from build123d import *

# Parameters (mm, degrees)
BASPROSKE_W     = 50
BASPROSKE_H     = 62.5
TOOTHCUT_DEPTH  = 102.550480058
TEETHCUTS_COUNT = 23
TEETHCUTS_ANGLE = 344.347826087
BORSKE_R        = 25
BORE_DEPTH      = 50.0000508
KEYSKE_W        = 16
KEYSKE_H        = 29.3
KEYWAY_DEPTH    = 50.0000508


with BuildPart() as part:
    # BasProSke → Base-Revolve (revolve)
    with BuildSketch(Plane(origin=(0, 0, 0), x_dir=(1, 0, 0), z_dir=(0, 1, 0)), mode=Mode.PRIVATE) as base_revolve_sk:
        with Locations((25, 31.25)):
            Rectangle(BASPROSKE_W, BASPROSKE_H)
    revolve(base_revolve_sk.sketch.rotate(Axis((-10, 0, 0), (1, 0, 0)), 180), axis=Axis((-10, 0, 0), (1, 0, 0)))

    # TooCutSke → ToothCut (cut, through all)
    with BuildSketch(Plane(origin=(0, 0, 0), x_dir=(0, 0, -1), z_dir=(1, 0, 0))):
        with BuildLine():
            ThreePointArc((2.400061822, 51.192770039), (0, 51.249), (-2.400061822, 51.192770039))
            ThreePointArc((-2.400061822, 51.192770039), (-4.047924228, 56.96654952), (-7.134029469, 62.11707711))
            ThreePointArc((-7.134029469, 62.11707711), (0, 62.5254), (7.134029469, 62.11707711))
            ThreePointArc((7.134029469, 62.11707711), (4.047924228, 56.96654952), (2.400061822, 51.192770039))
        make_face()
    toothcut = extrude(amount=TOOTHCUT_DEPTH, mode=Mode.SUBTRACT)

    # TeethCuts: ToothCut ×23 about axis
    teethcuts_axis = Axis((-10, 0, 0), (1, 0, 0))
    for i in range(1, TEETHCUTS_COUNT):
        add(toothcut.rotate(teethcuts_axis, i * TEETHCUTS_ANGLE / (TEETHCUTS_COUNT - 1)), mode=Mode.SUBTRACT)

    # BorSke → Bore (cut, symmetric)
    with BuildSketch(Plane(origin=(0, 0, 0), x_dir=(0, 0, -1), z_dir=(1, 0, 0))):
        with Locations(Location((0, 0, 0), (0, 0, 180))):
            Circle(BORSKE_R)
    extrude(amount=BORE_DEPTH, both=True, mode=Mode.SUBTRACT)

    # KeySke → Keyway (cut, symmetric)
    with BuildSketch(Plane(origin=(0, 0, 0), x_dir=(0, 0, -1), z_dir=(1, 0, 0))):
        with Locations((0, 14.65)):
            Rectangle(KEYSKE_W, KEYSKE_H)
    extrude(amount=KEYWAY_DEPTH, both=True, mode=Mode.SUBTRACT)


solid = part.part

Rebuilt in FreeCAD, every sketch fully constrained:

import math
import FreeCAD as App
import Part
import Sketcher

V = App.Vector


def add_polygon(sketch, points):
    """Adds a closed chain of lines whose ends are joined by coincident constraints."""
    first, n = sketch.GeometryCount, len(points)
    for a, b in zip(points, points[1:] + points[:1]):
        sketch.addGeometry(Part.LineSegment(App.Vector(*a, 0), App.Vector(*b, 0)), False)
    for i in range(n):
        sketch.addConstraint(Sketcher.Constraint("Coincident", first + i, 2, first + (i + 1) % n, 1))

doc = App.newDocument("Part")
body = doc.addObject("PartDesign::Body", "Body")

sketch1 = body.newObject("Sketcher::SketchObject", "Sketch")
sketch1.AttachmentSupport = (doc.getObject("XZ_Plane"), [""])
sketch1.MapMode = "FlatFace"
add_polygon(sketch1, [(0, -62), (0, 0), (50, 0), (50, -62)])
sketch1.addConstraint(Sketcher.Constraint("Vertical", 0))
sketch1.addConstraint(Sketcher.Constraint("Horizontal", 1))
sketch1.addConstraint(Sketcher.Constraint("Vertical", 2))
sketch1.addConstraint(Sketcher.Constraint("Horizontal", 3))
sketch1.addConstraint(Sketcher.Constraint("Coincident", 0, 2, -1, 1))
sketch1.addConstraint(Sketcher.Constraint("DistanceX", 1, 1, 1, 2, 50.0))
sketch1.addConstraint(Sketcher.Constraint("DistanceY", 0, 1, 0, 2, 62.5))
revolution = body.newObject("PartDesign::Revolution", "Revolution")
revolution.Profile = sketch1
revolution.ReferenceAxis = (sketch1, ["H_Axis"])
revolution.Angle = 360

sketch2 = body.newObject("Sketcher::SketchObject", "Sketch001")
sketch2.AttachmentSupport = (doc.getObject("YZ_Plane"), [""])
sketch2.MapMode = "FlatFace"
sketch2.addGeometry(Part.ArcOfCircle(Part.Circle(V(0, 0, 0), V(0, 0, 1), 51.2), math.radians(-2.68), math.radians(2.68)), False)
sketch2.addGeometry(Part.ArcOfCircle(Part.Circle(V(47.8, -25.2, 0), V(0, 0, 1), 23), math.radians(52), math.radians(82)), False)
sketch2.addGeometry(Part.ArcOfCircle(Part.Circle(V(0, 0, 0), V(0, 0, 1), 62.5), math.radians(-6.55), math.radians(6.55)), False)
sketch2.addGeometry(Part.ArcOfCircle(Part.Circle(V(47.8, 25.2, 0), V(0, 0, 1), 23), math.radians(-82), math.radians(-52)), False)
sketch2.addConstraint(Sketcher.Constraint("Coincident", 0, 1, 1, 2))
sketch2.addConstraint(Sketcher.Constraint("Coincident", 1, 1, 2, 1))
sketch2.addConstraint(Sketcher.Constraint("Coincident", 2, 2, 3, 2))
sketch2.addConstraint(Sketcher.Constraint("Coincident", 3, 1, 0, 2))
sketch2.addConstraint(Sketcher.Constraint("Coincident", 0, 3, -1, 1))
sketch2.addConstraint(Sketcher.Constraint("Coincident", 2, 3, -1, 1))
sketch2.addConstraint(Sketcher.Constraint("Equal", 1, 3))
sketch2.addConstraint(Sketcher.Constraint("Symmetric", 1, 3, 3, 3, -1))
sketch2.addConstraint(Sketcher.Constraint("Radius", 1, 23.0))
sketch2.addConstraint(Sketcher.Constraint("Radius", 0, 51.249))
sketch2.addConstraint(Sketcher.Constraint("Radius", 2, 62.5254))
sketch2.addConstraint(Sketcher.Constraint("DistanceX", -1, 1, 0, 1, 51.19277))
sketch2.addConstraint(Sketcher.Constraint("DistanceY", 1, 1, -1, 1, 7.134029))
pocket1 = body.newObject("PartDesign::Pocket", "Pocket")
pocket1.Profile = sketch2
pocket1.Type = "ThroughAll"
pocket1.Reversed = True
doc.recompute()

polarpattern = body.newObject("PartDesign::PolarPattern", "PolarPattern")
polarpattern.Originals = [pocket1]
polarpattern.Axis = (doc.getObject("X_Axis"), [""])
polarpattern.Angle = 360
polarpattern.Occurrences = 23
body.Tip = polarpattern

sketch3 = body.newObject("Sketcher::SketchObject", "Sketch002")
sketch3.AttachmentSupport = (doc.getObject("YZ_Plane"), [""])
sketch3.MapMode = "FlatFace"
sketch3.addGeometry(Part.Circle(V(0, 0, 0), V(0, 0, 1), 25), False)
sketch3.addConstraint(Sketcher.Constraint("Coincident", 0, 3, -1, 1))
sketch3.addConstraint(Sketcher.Constraint("Diameter", 0, 50.0))
pocket2 = body.newObject("PartDesign::Pocket", "Pocket001")
pocket2.Profile = sketch3
pocket2.Length = 100.000102
pocket2.Midplane = True

sketch4 = body.newObject("Sketcher::SketchObject", "Sketch003")
sketch4.AttachmentSupport = (doc.getObject("YZ_Plane"), [""])
sketch4.MapMode = "FlatFace"
add_polygon(sketch4, [(29, 8), (0, 8), (0, -8), (29, -8)])
sketch4.addConstraint(Sketcher.Constraint("Horizontal", 0))
sketch4.addConstraint(Sketcher.Constraint("Vertical", 1))
sketch4.addConstraint(Sketcher.Constraint("Horizontal", 2))
sketch4.addConstraint(Sketcher.Constraint("Vertical", 3))
sketch4.addConstraint(Sketcher.Constraint("Symmetric", 0, 2, 1, 2, -1, 1))
sketch4.addConstraint(Sketcher.Constraint("DistanceY", 1, 2, 1, 1, 16.0))
sketch4.addConstraint(Sketcher.Constraint("DistanceX", 0, 2, 0, 1, 29.3))
pocket3 = body.newObject("PartDesign::Pocket", "Pocket002")
pocket3.Profile = sketch4
pocket3.Length = 100.000102
pocket3.Midplane = True

doc.recompute()
